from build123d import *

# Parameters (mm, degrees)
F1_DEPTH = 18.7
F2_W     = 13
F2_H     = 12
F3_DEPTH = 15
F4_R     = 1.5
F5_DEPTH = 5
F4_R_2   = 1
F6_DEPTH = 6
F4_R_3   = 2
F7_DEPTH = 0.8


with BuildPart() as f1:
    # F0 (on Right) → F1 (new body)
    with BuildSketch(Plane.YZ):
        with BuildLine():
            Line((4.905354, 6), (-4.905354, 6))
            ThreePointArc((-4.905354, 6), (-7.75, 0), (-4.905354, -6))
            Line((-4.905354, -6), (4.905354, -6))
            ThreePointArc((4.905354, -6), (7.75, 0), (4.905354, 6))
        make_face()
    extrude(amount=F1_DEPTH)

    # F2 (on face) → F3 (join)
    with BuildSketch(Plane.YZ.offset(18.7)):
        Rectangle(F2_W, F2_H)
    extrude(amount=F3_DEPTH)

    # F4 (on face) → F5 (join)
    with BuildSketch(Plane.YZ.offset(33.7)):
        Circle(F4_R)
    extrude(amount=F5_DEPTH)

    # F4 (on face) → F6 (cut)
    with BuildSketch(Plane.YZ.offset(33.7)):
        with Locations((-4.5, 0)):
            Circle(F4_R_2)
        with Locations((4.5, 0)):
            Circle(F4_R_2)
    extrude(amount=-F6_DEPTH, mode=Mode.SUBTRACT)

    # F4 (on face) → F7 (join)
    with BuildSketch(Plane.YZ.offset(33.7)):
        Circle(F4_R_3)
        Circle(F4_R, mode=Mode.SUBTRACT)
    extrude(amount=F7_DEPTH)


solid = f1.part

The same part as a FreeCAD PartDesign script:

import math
import FreeCAD as App
import Part
import Sketcher


def add_polygon(sketch, points):
    """Adds a closed chain of lines whose ends are joined by coincident constraints."""
    first, n = sketch.GeometryCount, len(points)
    for a, b in zip(points, points[1:] + points[:1]):
        sketch.addGeometry(Part.LineSegment(App.Vector(*a, 0), App.Vector(*b, 0)), False)
    for i in range(n):
        sketch.addConstraint(Sketcher.Constraint("Coincident", first + i, 2, first + (i + 1) % n, 1))

doc = App.newDocument("Part")
body = doc.addObject("PartDesign::Body", "Body")

# Sketch on YZ plane
sketch1 = body.newObject("Sketcher::SketchObject", "Sketch")
sketch1.AttachmentSupport = (doc.getObject("YZ_Plane"), [""])
sketch1.MapMode = "FlatFace"
sketch1.addGeometry([
    Part.LineSegment(App.Vector(4.905354, 6, 0), App.Vector(-4.905354, 6, 0)),
    Part.ArcOfCircle(Part.Circle(App.Vector(0, 0, 0), App.Vector(0, 0, 1), 7.75), math.radians(129.268023), math.radians(230.731977)),
    Part.LineSegment(App.Vector(-4.905354, -6, 0), App.Vector(4.905354, -6, 0)),
    Part.ArcOfCircle(Part.Circle(App.Vector(0, 0, 0), App.Vector(0, 0, 1), 7.75), math.radians(-50.731977), math.radians(50.731977)),
], False)
sketch1.addConstraint([
    Sketcher.Constraint("Coincident", 0, 2, 1, 1),
    Sketcher.Constraint("Coincident", 1, 2, 2, 1),
    Sketcher.Constraint("Coincident", 2, 2, 3, 1),
    Sketcher.Constraint("Coincident", 3, 2, 0, 1),
    Sketcher.Constraint("Horizontal", 0),
    Sketcher.Constraint("Horizontal", 2),
    Sketcher.Constraint("Coincident", 1, 3, -1, 1),
    Sketcher.Constraint("Coincident", 3, 3, -1, 1),
    Sketcher.Constraint("Equal", 1, 3),
    Sketcher.Constraint("Vertical", 0, 2, 1, 2),
    Sketcher.Constraint("Radius", 1, 7.75),
    Sketcher.Constraint("DistanceY", -1, 1, 0, 2, 6.0),
])
pad1 = body.newObject("PartDesign::Pad", "Pad")
pad1.Profile = sketch1
pad1.Length = 18.7

# Sketch on YZ plane
sketch2 = body.newObject("Sketcher::SketchObject", "Sketch001")
sketch2.AttachmentSupport = (doc.getObject("YZ_Plane"), [""])
sketch2.MapMode = "FlatFace"
sketch2.AttachmentOffset = App.Placement(App.Vector(0, 0, 18.7), App.Rotation())
add_polygon(sketch2, [(-6.5, 6), (-6.5, -6), (6.5, -6), (6.5, 6)])  # lines 0-3
sketch2.addConstraint([
    Sketcher.Constraint("Vertical", 0),
    Sketcher.Constraint("Horizontal", 1),
    Sketcher.Constraint("Vertical", 2),
    Sketcher.Constraint("Horizontal", 3),
    Sketcher.Constraint("Symmetric", 0, 2, 2, 2, -1, 1),
    Sketcher.Constraint("DistanceX", 1, 1, 1, 2, 13.0),
    Sketcher.Constraint("DistanceY", 0, 2, 0, 1, 12.0),
])
pad2 = body.newObject("PartDesign::Pad", "Pad001")
pad2.Profile = sketch2
pad2.Length = 15

# Sketch on YZ plane
sketch3 = body.newObject("Sketcher::SketchObject", "Sketch002")
sketch3.AttachmentSupport = (doc.getObject("YZ_Plane"), [""])
sketch3.MapMode = "FlatFace"
sketch3.AttachmentOffset = App.Placement(App.Vector(0, 0, 33.7), App.Rotation())
sketch3.addGeometry(Part.Circle(App.Vector(0, 0, 0), App.Vector(0, 0, 1), 1.5), False)
sketch3.addConstraint([
    Sketcher.Constraint("Coincident", 0, 3, -1, 1),
    Sketcher.Constraint("Diameter", 0, 3.0),
])
pad3 = body.newObject("PartDesign::Pad", "Pad002")
pad3.Profile = sketch3
pad3.Length = 5

# Sketch on YZ plane
sketch4 = body.newObject("Sketcher::SketchObject", "Sketch003")
sketch4.AttachmentSupport = (doc.getObject("YZ_Plane"), [""])
sketch4.MapMode = "FlatFace"
sketch4.AttachmentOffset = App.Placement(App.Vector(0, 0, 33.7), App.Rotation())
sketch4.addGeometry([
    Part.Circle(App.Vector(-4.5, 0, 0), App.Vector(0, 0, 1), 1),
    Part.Circle(App.Vector(4.5, 0, 0), App.Vector(0, 0, 1), 1),
], False)
sketch4.addConstraint([
    Sketcher.Constraint("Equal", 0, 1),
    Sketcher.Constraint("Symmetric", 0, 3, 1, 3, -1, 1),
    Sketcher.Constraint("PointOnObject", 0, 3, -1),
    Sketcher.Constraint("Diameter", 0, 2.0),
    Sketcher.Constraint("DistanceX", 0, 3, 1, 3, 9.0),
])
pocket1 = body.newObject("PartDesign::Pocket", "Pocket")
pocket1.Profile = sketch4
pocket1.Length = 6

# Sketch on YZ plane
sketch5 = body.newObject("Sketcher::SketchObject", "Sketch004")
sketch5.AttachmentSupport = (doc.getObject("YZ_Plane"), [""])
sketch5.MapMode = "FlatFace"
sketch5.AttachmentOffset = App.Placement(App.Vector(0, 0, 33.7), App.Rotation())
sketch5.addGeometry([
    Part.Circle(App.Vector(0, 0, 0), App.Vector(0, 0, 1), 2),
    Part.Circle(App.Vector(0, 0, 0), App.Vector(0, 0, 1), 1.5),
], False)
sketch5.addConstraint([
    Sketcher.Constraint("Coincident", 0, 3, -1, 1),
    Sketcher.Constraint("Coincident", 1, 3, -1, 1),
    Sketcher.Constraint("Diameter", 0, 4.0),
    Sketcher.Constraint("Diameter", 1, 3.0),
])
pad4 = body.newObject("PartDesign::Pad", "Pad003")
pad4.Profile = sketch5
pad4.Length = 0.8

doc.recompute()
